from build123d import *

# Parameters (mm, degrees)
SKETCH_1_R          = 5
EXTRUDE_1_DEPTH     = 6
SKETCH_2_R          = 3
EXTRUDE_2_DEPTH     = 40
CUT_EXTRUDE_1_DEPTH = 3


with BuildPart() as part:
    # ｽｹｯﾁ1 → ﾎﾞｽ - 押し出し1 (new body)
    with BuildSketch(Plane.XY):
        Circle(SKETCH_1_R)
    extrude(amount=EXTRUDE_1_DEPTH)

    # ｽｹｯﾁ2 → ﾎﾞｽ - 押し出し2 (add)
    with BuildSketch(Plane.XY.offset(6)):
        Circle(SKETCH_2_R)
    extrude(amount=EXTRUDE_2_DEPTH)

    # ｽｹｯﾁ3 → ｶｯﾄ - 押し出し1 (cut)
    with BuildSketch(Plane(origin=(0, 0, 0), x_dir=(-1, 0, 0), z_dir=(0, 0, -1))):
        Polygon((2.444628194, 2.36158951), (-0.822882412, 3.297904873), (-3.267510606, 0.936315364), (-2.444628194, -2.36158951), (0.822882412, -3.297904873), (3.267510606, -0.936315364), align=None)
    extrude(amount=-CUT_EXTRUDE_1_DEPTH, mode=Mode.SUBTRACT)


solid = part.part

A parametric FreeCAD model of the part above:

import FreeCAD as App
import Part
import Sketcher
Q = App.Units.Quantity


def add_polygon(sketch, points):
    """Adds a closed chain of lines whose ends are joined by coincident constraints."""
    first, n = sketch.GeometryCount, len(points)
    for a, b in zip(points, points[1:] + points[:1]):
        sketch.addGeometry(Part.LineSegment(App.Vector(*a, 0), App.Vector(*b, 0)), False)
    for i in range(n):
        sketch.addConstraint(Sketcher.Constraint("Coincident", first + i, 2, first + (i + 1) % n, 1))

doc = App.newDocument("Part")
body = doc.addObject("PartDesign::Body", "Body")

sketch1 = body.newObject("Sketcher::SketchObject", "Sketch")
sketch1.AttachmentSupport = (doc.getObject("XY_Plane"), [""])
sketch1.MapMode = "FlatFace"
sketch1.addGeometry(Part.Circle(App.Vector(0, 0, 0), App.Vector(0, 0, 1), 5), False)
sketch1.addConstraint(Sketcher.Constraint("Coincident", 0, 3, -1, 1))
sketch1.addConstraint(Sketcher.Constraint("Diameter", 0, Q("10 mm")))
pad1 = body.newObject("PartDesign::Pad", "Pad")
pad1.Profile = sketch1
pad1.Length = 6

sketch2 = body.newObject("Sketcher::SketchObject", "Sketch001")
sketch2.AttachmentSupport = (doc.getObject("XY_Plane"), [""])
sketch2.MapMode = "FlatFace"
sketch2.AttachmentOffset = App.Placement(App.Vector(0, 0, 6), App.Rotation())
sketch2.addGeometry(Part.Circle(App.Vector(0, 0, 0), App.Vector(0, 0, 1), 3), False)
sketch2.addConstraint(Sketcher.Constraint("Coincident", 0, 3, -1, 1))
sketch2.addConstraint(Sketcher.Constraint("Diameter", 0, Q("6 mm")))
pad2 = body.newObject("PartDesign::Pad", "Pad001")
pad2.Profile = sketch2
pad2.Length = 40

sketch3 = body.newObject("Sketcher::SketchObject", "Sketch002")
sketch3.AttachmentSupport = (doc.getObject("XY_Plane"), [""])
sketch3.MapMode = "FlatFace"
add_polygon(sketch3, [(-2.4, 2.4), (0.8, 3.3), (3.3, 0.9), (2.4, -2.4), (-0.8, -3.3), (-3.3, -0.9)])
sketch3.addConstraint(Sketcher.Constraint("Symmetric", 0, 2, 3, 2, -1, 1))
sketch3.addConstraint(Sketcher.Constraint("Symmetric", 1, 2, 4, 2, -1, 1))
sketch3.addConstraint(Sketcher.Constraint("Symmetric", 2, 2, 5, 2, -1, 1))
sketch3.addConstraint(Sketcher.Constraint("Equal", 0, 1))
sketch3.addConstraint(Sketcher.Constraint("Equal", 1, 2))
sketch3.addConstraint(Sketcher.Constraint("DistanceX", -1, 1, 1, 2, Q("3.267511 mm")))
sketch3.addConstraint(Sketcher.Constraint("DistanceX", -1, 1, 2, 2, Q("2.444628 mm")))
sketch3.addConstraint(Sketcher.Constraint("DistanceY", 2, 2, -1, 1, Q("2.36159 mm")))
sketch3.addConstraint(Sketcher.Constraint("DistanceX", 0, 2, 1, 2, Q("2.444628 mm")))
pocket1 = body.newObject("PartDesign::Pocket", "Pocket")
pocket1.Profile = sketch3
pocket1.Length = 3
pocket1.Reversed = True

doc.recompute()
